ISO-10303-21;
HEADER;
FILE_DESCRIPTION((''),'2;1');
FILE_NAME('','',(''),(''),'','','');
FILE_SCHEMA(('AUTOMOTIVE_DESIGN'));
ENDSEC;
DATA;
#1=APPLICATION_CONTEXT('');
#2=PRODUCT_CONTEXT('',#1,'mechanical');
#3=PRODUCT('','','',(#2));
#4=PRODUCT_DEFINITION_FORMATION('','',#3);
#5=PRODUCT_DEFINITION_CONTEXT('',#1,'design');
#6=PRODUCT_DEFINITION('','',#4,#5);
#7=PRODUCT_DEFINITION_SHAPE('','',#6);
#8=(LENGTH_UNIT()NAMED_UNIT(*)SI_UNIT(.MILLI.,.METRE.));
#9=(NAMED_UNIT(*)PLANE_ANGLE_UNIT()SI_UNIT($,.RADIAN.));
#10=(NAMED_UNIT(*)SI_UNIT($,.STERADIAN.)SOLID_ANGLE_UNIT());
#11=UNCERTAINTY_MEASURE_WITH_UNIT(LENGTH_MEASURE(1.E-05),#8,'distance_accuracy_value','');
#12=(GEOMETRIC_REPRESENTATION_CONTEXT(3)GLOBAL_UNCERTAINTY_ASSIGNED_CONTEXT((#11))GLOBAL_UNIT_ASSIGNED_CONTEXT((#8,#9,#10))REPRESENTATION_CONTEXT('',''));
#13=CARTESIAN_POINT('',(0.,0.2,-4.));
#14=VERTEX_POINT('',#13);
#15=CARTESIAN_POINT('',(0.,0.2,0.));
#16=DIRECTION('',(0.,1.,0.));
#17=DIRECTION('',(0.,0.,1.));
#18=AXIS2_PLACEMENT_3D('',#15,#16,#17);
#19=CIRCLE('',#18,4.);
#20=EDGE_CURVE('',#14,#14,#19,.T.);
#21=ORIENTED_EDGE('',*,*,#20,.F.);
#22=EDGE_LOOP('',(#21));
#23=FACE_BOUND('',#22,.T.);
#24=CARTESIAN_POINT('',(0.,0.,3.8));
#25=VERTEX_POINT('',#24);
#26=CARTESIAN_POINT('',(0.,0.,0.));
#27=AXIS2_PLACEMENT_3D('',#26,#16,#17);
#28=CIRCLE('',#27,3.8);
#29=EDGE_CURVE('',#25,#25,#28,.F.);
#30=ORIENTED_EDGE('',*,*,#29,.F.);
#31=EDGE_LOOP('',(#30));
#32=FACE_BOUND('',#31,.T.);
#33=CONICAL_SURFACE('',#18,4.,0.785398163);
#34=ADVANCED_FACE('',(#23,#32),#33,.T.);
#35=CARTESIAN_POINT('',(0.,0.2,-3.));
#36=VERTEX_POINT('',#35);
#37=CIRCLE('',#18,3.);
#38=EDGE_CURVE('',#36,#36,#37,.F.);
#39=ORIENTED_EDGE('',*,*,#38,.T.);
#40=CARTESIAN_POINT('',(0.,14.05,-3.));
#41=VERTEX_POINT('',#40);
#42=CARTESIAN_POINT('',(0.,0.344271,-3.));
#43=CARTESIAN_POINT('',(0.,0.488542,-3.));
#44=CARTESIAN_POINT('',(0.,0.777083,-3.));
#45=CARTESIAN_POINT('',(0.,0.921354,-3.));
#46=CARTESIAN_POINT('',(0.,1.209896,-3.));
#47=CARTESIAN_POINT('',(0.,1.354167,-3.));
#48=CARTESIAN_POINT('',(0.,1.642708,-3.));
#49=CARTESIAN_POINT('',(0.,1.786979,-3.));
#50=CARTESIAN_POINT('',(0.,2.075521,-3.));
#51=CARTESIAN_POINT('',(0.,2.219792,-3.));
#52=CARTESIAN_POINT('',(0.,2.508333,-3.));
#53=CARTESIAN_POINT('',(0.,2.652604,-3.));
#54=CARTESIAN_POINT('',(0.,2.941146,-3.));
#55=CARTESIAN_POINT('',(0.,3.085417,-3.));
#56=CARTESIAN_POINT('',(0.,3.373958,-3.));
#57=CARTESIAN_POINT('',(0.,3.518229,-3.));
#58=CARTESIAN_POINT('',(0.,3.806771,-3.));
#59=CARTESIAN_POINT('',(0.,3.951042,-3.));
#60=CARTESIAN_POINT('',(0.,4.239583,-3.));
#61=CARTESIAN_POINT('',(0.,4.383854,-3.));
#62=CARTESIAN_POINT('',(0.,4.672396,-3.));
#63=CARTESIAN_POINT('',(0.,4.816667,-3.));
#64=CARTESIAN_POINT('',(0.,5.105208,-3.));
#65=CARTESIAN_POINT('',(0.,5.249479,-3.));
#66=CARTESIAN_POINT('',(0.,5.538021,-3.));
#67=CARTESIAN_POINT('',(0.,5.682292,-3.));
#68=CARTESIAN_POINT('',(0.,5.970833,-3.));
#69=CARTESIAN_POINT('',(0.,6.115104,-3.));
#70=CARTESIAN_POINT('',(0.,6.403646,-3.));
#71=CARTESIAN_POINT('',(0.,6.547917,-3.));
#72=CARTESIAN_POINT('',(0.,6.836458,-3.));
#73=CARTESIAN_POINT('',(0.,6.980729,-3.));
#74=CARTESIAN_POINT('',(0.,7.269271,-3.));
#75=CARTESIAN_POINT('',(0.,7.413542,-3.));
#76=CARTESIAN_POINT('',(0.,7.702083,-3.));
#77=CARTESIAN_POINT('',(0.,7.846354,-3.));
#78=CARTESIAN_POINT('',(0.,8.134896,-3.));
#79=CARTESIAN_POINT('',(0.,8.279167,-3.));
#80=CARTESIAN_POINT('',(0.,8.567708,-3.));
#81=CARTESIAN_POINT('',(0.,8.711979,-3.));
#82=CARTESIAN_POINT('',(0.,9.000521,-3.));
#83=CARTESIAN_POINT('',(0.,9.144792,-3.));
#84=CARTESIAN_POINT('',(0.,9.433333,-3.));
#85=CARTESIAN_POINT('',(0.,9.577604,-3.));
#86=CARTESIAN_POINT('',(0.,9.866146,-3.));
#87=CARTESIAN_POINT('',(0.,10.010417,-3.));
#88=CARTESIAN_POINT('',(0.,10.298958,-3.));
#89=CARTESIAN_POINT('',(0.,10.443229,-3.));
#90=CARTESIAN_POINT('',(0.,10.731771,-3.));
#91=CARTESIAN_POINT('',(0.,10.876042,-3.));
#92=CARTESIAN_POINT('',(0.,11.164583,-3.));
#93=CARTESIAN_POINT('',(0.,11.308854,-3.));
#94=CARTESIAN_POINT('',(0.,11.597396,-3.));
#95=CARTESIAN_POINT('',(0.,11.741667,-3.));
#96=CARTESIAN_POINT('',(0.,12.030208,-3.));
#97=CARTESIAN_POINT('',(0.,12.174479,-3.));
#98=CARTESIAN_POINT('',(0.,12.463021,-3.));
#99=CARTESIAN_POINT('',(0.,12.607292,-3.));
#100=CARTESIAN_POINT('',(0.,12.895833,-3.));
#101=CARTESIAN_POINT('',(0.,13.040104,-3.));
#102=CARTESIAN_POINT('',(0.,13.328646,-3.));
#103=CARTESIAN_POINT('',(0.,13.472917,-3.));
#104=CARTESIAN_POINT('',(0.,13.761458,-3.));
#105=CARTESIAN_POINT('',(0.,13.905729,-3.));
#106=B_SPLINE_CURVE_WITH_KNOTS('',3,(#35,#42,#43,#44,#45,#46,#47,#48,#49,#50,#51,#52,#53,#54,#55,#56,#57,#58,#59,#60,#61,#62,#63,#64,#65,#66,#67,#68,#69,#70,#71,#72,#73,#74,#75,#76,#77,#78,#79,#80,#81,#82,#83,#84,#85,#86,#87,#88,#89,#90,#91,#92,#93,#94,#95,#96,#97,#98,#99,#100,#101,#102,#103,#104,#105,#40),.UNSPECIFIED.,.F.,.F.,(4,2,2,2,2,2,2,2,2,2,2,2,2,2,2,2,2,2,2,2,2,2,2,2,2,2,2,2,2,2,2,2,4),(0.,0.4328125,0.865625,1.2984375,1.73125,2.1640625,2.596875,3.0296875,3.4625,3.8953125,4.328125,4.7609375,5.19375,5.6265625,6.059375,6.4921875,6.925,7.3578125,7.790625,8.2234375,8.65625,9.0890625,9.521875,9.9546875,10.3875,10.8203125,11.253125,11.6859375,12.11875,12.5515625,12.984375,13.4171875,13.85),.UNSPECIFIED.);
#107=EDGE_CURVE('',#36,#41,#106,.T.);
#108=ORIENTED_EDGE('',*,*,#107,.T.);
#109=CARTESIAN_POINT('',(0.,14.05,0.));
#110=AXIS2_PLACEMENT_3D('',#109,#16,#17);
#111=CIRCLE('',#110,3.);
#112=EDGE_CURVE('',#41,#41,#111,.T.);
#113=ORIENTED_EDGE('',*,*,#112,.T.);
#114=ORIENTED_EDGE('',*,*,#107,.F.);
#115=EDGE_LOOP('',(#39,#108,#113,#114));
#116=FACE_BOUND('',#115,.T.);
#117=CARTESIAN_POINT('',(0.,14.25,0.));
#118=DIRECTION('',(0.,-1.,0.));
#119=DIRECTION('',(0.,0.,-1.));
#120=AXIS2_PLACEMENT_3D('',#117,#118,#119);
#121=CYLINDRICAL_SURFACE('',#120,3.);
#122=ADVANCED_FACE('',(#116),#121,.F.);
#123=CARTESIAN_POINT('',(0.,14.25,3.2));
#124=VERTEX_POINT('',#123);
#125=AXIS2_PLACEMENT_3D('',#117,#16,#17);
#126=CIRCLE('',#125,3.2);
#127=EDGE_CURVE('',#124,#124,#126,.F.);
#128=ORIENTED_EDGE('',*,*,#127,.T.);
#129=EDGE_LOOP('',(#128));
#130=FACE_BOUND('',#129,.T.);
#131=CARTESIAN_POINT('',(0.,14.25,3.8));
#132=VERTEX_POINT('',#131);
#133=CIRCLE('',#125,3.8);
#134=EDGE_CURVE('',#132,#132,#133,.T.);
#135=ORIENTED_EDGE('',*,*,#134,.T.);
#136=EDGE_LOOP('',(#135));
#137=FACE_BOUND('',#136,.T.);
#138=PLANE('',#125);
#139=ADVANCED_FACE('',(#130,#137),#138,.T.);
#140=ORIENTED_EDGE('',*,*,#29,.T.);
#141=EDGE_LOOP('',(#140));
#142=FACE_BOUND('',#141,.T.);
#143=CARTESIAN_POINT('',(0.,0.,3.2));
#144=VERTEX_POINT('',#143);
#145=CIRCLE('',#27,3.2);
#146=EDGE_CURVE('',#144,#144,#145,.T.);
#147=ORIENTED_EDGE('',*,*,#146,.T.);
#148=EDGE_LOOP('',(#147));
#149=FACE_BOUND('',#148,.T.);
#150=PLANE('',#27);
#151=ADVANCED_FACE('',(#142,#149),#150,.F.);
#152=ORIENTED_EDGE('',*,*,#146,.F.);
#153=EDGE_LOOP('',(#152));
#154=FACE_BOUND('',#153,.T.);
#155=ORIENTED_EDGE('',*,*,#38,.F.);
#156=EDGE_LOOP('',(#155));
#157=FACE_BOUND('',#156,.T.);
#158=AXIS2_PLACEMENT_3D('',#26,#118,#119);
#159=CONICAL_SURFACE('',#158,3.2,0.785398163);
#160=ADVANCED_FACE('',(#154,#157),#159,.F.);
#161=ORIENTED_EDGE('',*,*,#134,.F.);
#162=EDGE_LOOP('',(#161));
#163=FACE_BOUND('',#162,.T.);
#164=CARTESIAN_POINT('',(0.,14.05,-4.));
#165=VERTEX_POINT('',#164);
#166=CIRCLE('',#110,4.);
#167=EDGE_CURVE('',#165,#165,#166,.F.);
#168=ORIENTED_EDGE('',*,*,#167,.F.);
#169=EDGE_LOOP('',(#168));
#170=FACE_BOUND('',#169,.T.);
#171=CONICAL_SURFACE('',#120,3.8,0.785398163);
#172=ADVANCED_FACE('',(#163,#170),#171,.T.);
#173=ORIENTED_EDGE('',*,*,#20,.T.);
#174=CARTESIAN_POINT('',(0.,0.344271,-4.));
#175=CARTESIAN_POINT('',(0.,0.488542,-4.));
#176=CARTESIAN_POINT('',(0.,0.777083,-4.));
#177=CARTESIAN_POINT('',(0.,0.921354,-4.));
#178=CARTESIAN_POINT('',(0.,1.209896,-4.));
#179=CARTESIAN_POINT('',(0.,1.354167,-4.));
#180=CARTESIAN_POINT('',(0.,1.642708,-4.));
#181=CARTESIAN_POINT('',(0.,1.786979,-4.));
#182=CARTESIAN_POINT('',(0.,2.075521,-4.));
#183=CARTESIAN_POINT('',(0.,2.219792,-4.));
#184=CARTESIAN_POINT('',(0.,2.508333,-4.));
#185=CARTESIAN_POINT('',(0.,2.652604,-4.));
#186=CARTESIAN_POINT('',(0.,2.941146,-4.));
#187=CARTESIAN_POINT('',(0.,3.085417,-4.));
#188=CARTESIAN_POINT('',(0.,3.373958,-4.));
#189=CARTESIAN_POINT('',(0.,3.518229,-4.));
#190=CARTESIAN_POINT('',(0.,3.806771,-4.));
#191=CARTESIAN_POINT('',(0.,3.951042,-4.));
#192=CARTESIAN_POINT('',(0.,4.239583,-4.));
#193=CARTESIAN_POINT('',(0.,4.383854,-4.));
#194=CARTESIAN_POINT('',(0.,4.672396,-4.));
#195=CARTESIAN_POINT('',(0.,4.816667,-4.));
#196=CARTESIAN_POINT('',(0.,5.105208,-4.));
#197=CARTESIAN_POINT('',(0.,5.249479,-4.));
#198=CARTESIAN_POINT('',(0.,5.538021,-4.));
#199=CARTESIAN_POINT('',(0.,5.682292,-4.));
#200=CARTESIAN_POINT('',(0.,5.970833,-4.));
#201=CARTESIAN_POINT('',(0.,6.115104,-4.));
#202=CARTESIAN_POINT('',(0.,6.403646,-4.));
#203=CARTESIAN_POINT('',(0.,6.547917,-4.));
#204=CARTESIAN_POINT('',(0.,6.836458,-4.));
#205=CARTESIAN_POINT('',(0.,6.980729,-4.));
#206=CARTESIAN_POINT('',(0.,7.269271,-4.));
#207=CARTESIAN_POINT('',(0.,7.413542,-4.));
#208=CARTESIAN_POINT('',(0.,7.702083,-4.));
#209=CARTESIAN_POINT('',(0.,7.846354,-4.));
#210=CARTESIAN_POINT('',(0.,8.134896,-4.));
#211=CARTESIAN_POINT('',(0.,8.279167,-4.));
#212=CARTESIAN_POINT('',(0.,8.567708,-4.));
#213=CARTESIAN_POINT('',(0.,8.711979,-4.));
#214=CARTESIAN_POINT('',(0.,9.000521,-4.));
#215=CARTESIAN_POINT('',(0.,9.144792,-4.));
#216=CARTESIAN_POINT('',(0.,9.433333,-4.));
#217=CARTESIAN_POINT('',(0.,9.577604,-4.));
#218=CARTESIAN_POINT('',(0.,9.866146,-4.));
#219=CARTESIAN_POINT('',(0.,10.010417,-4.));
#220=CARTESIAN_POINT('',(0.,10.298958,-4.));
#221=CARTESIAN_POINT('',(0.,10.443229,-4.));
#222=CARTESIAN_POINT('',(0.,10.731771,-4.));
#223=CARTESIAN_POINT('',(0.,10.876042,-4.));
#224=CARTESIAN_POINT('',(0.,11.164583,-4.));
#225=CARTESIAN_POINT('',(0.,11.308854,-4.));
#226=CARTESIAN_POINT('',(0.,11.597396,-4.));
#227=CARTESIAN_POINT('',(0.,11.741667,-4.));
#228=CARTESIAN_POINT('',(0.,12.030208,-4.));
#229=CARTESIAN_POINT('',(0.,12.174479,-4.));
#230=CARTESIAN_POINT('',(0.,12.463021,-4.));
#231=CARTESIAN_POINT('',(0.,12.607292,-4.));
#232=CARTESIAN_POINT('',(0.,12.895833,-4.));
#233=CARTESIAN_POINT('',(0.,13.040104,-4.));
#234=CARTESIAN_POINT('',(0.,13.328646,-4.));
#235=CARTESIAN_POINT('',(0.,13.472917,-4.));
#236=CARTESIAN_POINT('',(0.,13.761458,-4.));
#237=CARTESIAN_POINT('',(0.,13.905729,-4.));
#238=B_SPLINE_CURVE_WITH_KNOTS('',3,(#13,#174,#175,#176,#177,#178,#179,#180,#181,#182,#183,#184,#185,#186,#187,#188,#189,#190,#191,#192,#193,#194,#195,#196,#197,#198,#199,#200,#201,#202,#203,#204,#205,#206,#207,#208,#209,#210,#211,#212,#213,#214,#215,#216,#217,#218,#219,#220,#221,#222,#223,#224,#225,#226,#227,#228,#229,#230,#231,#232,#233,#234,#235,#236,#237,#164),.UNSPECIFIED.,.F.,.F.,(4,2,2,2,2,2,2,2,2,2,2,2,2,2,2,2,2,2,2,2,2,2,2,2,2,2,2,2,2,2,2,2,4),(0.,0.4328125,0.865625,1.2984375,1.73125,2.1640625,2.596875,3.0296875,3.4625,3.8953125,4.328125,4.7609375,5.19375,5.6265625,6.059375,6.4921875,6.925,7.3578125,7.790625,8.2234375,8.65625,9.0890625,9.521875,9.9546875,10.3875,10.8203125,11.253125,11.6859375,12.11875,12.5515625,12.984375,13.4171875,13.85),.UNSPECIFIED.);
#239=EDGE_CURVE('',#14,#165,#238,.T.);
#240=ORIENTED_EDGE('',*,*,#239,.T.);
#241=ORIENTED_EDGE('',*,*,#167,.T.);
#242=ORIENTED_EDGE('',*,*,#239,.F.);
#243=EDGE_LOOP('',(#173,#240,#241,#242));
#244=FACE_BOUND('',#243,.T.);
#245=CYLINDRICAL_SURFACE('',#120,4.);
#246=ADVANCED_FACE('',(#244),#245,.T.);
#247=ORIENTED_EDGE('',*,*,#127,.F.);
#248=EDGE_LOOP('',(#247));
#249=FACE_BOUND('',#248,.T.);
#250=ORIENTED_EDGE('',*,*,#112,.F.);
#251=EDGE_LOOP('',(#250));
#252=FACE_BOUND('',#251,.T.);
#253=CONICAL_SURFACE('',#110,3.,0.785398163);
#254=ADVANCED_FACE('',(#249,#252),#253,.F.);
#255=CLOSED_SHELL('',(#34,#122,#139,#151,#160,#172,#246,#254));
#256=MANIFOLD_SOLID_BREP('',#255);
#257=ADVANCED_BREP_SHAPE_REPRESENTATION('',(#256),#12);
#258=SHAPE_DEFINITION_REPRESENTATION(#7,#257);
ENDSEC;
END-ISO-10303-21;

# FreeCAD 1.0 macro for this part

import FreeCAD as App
import Part
import Sketcher


def edges_at(feature, points):
    """Names of the edges that pass closest to the given points."""
    edges = feature.Shape.Edges
    near = lambda p: min(range(len(edges)), key=lambda i: edges[i].distToShape(Part.Vertex(*p))[0])
    return sorted({f"Edge{near(p) + 1}" for p in points})

doc = App.newDocument("Part")
params = doc.addObject("Spreadsheet::Sheet", "Params")
for row, (alias, value) in enumerate([
    ("sketch1_diameter", "8 mm"),
    ("sketch1_diameter2", "6 mm"),
    ("pad1_length", "14.25 mm"),
    ("chamfer_size", "0.2 mm"),
], start=1):
    params.set(f"A{row}", alias)
    params.set(f"B{row}", "=" + value)
    params.setAlias(f"B{row}", alias)

body = doc.addObject("PartDesign::Body", "Body")

# Sketch on XZ plane
sketch1 = body.newObject("Sketcher::SketchObject", "Sketch")
sketch1.AttachmentSupport = (doc.getObject("XZ_Plane"), [""])
sketch1.MapMode = "FlatFace"
sketch1.addGeometry(Part.Circle(App.Vector(0, 0, 0), App.Vector(0, 0, 1), 4), False)
sketch1.addGeometry(Part.Circle(App.Vector(0, 0, 0), App.Vector(0, 0, 1), 3), False)
sketch1.addConstraint(Sketcher.Constraint("Coincident", 0, 3, -1, 1))
sketch1.addConstraint(Sketcher.Constraint("Coincident", 1, 3, -1, 1))
sketch1.addConstraint(Sketcher.Constraint("Diameter", 0, 8.0))
sketch1.addConstraint(Sketcher.Constraint("Diameter", 1, 6.0))
sketch1.setExpression("Constraints[2]", "Params.sketch1_diameter")
sketch1.setExpression("Constraints[3]", "Params.sketch1_diameter2")
pad1 = body.newObject("PartDesign::Pad", "Pad")
pad1.Profile = sketch1
pad1.setExpression("Length", "Params.pad1_length")
pad1.Reversed = True
doc.recompute()

chamfer = body.newObject("PartDesign::Chamfer", "Chamfer")
chamfer.Base = (pad1, edges_at(pad1, [
    (0, 0, 4),
    (0, 14.25, 4),
    (0, 0, 3),
    (0, 14.25, 3),
]))
chamfer.setExpression("Size", "Params.chamfer_size")

doc.recompute()
